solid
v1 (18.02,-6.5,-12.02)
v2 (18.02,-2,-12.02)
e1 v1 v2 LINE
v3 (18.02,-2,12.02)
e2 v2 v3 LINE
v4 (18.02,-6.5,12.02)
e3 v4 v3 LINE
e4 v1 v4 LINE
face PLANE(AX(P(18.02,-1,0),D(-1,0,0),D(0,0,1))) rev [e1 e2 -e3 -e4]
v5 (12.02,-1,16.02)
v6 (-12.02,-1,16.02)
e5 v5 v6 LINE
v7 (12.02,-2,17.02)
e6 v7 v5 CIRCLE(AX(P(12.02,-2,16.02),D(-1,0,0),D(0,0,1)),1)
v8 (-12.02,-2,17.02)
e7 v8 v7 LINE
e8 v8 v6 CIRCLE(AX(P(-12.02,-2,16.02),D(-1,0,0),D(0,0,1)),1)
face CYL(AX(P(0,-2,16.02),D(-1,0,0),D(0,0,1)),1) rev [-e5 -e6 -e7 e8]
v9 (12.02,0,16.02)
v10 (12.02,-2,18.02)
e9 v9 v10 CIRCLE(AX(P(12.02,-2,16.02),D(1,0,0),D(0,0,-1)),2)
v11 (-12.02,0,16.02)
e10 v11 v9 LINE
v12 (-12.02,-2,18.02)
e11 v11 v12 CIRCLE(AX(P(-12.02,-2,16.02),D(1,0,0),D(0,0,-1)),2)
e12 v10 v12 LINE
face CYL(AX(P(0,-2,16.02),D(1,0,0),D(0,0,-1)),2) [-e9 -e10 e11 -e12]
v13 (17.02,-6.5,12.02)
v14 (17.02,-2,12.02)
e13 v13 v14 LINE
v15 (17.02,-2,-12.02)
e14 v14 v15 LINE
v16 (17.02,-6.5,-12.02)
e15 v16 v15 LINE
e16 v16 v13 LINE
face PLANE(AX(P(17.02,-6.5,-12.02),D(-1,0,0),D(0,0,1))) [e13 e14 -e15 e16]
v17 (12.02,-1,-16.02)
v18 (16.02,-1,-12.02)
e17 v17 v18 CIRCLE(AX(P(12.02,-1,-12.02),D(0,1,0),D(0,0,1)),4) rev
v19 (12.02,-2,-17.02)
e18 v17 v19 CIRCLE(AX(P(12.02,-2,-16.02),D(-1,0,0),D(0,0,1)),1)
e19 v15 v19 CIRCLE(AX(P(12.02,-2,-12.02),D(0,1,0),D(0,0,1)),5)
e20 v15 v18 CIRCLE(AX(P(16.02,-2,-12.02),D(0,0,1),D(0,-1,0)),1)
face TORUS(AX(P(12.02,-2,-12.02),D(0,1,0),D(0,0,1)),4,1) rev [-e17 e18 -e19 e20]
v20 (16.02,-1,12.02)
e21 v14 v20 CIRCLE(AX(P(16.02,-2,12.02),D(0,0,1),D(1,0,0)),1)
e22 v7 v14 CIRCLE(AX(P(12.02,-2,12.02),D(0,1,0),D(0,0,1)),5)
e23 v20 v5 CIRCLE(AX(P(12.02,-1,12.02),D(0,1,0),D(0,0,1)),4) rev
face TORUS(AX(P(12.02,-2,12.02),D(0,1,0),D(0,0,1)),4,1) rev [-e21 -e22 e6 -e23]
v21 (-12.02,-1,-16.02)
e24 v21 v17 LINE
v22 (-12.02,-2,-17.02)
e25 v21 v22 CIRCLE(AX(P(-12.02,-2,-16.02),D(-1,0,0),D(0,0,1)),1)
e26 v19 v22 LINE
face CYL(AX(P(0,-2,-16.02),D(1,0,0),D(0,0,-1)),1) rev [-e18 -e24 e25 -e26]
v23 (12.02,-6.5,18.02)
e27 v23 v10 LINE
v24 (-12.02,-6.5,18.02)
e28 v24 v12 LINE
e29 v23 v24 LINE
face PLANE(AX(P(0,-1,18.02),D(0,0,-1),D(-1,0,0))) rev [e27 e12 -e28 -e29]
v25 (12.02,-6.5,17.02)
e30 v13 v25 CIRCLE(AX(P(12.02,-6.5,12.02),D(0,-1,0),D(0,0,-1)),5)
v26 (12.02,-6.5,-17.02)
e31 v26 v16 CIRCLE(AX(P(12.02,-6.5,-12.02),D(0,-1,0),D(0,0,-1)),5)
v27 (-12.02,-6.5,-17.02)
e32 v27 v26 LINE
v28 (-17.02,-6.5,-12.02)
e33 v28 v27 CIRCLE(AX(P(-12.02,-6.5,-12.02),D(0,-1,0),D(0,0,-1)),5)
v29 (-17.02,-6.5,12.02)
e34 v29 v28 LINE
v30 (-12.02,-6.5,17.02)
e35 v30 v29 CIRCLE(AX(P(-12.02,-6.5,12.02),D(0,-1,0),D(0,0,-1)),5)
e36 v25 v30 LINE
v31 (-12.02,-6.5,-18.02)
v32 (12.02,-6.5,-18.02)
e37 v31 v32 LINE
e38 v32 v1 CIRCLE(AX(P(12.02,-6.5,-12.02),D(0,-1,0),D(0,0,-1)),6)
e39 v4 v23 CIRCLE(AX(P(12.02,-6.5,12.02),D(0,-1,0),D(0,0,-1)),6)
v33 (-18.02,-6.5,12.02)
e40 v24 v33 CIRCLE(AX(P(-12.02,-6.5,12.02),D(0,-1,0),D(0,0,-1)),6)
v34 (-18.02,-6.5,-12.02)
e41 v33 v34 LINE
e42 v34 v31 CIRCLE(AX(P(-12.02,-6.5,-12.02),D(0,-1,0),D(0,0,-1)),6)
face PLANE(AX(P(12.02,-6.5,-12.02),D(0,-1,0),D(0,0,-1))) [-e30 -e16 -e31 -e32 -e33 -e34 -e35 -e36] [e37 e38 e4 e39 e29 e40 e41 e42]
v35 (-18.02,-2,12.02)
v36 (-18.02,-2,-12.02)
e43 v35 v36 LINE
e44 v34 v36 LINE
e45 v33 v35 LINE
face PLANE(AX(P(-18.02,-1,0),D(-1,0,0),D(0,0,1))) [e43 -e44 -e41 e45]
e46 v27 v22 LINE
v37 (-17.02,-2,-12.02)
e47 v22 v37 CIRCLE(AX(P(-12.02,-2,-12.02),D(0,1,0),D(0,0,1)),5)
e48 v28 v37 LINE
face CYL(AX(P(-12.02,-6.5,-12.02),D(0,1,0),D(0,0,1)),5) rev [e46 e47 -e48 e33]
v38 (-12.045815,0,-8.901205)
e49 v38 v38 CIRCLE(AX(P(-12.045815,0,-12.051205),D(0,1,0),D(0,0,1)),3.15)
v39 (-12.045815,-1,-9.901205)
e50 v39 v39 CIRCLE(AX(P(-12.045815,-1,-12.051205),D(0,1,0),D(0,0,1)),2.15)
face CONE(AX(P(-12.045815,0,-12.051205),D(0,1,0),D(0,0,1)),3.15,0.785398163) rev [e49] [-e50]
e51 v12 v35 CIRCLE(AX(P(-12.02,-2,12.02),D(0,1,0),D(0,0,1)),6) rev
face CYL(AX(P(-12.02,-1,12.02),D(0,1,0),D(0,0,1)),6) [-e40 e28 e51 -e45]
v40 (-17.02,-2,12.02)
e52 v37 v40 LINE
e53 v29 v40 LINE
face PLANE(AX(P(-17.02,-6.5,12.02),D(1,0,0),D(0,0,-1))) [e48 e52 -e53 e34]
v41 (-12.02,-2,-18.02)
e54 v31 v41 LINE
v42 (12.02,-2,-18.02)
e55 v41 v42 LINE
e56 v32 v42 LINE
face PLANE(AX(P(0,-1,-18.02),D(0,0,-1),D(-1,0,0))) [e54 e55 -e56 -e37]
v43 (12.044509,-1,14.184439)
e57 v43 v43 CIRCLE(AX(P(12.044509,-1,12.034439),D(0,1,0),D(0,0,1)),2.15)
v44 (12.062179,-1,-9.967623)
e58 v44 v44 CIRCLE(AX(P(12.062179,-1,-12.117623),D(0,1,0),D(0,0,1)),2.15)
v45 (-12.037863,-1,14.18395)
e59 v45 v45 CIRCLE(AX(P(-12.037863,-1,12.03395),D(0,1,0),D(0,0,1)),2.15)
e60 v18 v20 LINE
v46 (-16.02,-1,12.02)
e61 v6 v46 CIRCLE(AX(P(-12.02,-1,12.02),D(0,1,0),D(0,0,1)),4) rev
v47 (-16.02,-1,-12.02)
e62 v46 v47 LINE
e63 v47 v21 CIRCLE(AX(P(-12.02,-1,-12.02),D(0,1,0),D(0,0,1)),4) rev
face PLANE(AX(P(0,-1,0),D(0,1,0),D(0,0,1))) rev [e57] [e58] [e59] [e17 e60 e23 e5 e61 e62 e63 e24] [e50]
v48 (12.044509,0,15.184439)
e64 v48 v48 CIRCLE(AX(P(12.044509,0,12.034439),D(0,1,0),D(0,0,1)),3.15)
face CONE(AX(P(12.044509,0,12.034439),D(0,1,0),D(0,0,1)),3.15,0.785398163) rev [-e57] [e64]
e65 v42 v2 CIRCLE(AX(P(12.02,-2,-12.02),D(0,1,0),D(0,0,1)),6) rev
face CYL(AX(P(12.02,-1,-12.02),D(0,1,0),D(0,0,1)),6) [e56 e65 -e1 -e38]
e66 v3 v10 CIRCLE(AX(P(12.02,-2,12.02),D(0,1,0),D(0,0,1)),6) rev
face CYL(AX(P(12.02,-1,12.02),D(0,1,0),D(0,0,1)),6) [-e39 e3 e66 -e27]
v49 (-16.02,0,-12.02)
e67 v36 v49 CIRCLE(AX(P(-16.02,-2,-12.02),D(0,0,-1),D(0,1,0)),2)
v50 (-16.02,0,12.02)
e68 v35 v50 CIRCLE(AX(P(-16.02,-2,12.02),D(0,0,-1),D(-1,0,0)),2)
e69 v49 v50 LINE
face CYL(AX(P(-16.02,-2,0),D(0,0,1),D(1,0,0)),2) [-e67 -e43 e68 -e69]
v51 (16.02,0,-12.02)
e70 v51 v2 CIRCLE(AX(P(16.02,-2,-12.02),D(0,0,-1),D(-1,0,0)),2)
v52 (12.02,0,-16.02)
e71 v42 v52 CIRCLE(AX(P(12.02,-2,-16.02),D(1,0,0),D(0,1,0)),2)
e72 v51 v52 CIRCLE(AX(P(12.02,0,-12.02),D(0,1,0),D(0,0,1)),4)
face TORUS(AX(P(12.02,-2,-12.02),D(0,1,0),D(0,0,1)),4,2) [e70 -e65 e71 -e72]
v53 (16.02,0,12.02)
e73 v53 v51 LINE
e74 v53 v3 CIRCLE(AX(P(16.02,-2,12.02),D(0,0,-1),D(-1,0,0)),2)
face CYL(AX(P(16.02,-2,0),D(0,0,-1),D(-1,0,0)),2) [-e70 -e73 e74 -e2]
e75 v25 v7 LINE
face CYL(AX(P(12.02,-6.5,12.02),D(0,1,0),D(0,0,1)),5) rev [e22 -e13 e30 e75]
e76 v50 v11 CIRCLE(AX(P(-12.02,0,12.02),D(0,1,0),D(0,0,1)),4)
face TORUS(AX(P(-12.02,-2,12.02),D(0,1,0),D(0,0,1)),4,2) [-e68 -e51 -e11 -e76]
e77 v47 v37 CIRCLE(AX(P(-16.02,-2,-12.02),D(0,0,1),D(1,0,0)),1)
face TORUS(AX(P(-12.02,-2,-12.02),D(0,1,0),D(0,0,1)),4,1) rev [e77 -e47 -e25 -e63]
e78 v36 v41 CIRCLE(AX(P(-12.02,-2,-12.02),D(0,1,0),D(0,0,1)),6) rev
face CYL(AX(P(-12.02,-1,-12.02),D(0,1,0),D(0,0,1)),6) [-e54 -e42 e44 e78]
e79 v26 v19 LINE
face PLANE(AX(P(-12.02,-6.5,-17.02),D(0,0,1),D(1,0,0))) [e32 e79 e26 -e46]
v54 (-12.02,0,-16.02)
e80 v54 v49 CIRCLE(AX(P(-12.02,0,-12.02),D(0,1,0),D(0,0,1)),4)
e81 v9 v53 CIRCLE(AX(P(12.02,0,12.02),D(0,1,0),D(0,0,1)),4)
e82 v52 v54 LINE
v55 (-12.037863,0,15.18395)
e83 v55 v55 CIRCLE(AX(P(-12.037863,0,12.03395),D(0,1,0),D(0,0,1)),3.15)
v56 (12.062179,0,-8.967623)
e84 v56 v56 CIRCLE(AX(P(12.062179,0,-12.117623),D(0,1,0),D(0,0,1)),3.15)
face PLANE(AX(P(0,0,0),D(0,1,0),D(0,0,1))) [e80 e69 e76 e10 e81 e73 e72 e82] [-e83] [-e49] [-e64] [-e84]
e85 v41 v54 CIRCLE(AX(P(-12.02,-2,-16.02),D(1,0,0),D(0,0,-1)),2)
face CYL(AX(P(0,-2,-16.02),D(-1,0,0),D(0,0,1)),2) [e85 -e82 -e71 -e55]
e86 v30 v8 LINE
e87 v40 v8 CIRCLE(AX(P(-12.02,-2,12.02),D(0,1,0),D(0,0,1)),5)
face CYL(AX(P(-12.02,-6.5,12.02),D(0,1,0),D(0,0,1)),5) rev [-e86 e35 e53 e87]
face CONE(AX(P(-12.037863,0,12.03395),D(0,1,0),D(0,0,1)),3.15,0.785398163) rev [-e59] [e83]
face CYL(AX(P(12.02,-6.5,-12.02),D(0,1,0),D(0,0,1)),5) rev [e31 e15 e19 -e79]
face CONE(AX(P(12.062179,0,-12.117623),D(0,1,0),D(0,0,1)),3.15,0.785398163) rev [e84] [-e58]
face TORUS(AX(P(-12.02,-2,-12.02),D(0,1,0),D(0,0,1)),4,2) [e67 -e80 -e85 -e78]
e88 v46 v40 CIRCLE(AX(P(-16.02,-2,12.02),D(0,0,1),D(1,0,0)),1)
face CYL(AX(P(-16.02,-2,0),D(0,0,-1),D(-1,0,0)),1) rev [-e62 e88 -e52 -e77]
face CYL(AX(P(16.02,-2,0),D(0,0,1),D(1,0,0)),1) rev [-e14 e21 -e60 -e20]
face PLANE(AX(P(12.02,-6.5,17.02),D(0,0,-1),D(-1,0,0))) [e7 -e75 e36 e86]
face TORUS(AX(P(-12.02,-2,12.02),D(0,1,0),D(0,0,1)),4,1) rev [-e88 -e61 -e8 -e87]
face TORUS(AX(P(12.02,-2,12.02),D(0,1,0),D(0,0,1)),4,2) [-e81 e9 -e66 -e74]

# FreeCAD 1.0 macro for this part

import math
import FreeCAD as App
import Part
import Sketcher
from FreeCAD import Vector
Q = App.Units.Quantity


def edges_at(feature, points):
    """Names of the edges that pass closest to the given points."""
    edges = feature.Shape.Edges
    near = lambda p: min(range(len(edges)), key=lambda i: edges[i].distToShape(Part.Vertex(*p))[0])
    return sorted({f"Edge{near(p) + 1}" for p in points})


def add_polygon(sketch, points):
    """Adds a closed chain of lines whose ends are joined by coincident constraints."""
    first, n = sketch.GeometryCount, len(points)
    for a, b in zip(points, points[1:] + points[:1]):
        sketch.addGeometry(Part.LineSegment(App.Vector(*a, 0), App.Vector(*b, 0)), False)
    for i in range(n):
        sketch.addConstraint(Sketcher.Constraint("Coincident", first + i, 2, first + (i + 1) % n, 1))

doc = App.newDocument("Part")
body = doc.addObject("PartDesign::Body", "Body")

sketch1 = body.newObject("Sketcher::SketchObject", "Sketch")
sketch1.AttachmentSupport = (doc.getObject("XZ_Plane"), [""])
sketch1.MapMode = "FlatFace"
sketch1.addGeometry([
    Part.LineSegment(Vector(-18, -12, 0), Vector(-18, 12, 0)),
    Part.ArcOfCircle(Part.Circle(Vector(-12, 12, 0), Vector(0, 0, 1), 6), math.radians(90), math.radians(180)),
    Part.LineSegment(Vector(-12, 18, 0), Vector(12, 18, 0)),
    Part.ArcOfCircle(Part.Circle(Vector(12, 12, 0), Vector(0, 0, 1), 6), math.radians(0), math.radians(90)),
    Part.LineSegment(Vector(18, 12, 0), Vector(18, -12, 0)),
    Part.ArcOfCircle(Part.Circle(Vector(12, -12, 0), Vector(0, 0, 1), 6), math.radians(-90), math.radians(0)),
    Part.LineSegment(Vector(12, -18, 0), Vector(-12, -18, 0)),
    Part.ArcOfCircle(Part.Circle(Vector(-12, -12, 0), Vector(0, 0, 1), 6), math.radians(180), math.radians(270)),
], False)
sketch1.addConstraint([
    Sketcher.Constraint("Tangent", 0, 2, 1, 2),
    Sketcher.Constraint("Tangent", 1, 1, 2, 1),
    Sketcher.Constraint("Tangent", 2, 2, 3, 2),
    Sketcher.Constraint("Tangent", 3, 1, 4, 1),
    Sketcher.Constraint("Tangent", 4, 2, 5, 2),
    Sketcher.Constraint("Tangent", 5, 1, 6, 1),
    Sketcher.Constraint("Tangent", 6, 2, 7, 2),
    Sketcher.Constraint("Tangent", 7, 1, 0, 1),
    Sketcher.Constraint("Vertical", 0),
    Sketcher.Constraint("Horizontal", 2),
    Sketcher.Constraint("Vertical", 4),
    Sketcher.Constraint("Horizontal", 6),
    Sketcher.Constraint("Equal", 1, 3),
    Sketcher.Constraint("Equal", 3, 5),
    Sketcher.Constraint("Equal", 5, 7),
    Sketcher.Constraint("Symmetric", 1, 3, 5, 3, -1, 1),
    Sketcher.Constraint("Equal", 6, 0),
    Sketcher.Constraint("Radius", 1, Q("6 mm")),
    Sketcher.Constraint("DistanceX", 2, 1, 2, 2, Q("24.04 mm")),
])
pad1 = body.newObject("PartDesign::Pad", "Pad")
pad1.Profile = sketch1
pad1.Length = 1

sketch2 = body.newObject("Sketcher::SketchObject", "Sketch001")
sketch2.AttachmentSupport = (doc.getObject("YZ_Plane"), [""])
sketch2.MapMode = "FlatFace"
sketch2.AttachmentOffset = App.Placement(Vector(0, 0, -12.037863), App.Rotation())
add_polygon(sketch2, [(-1, 12.03), (0, 12.03), (0, 15.18), (-1.45, 13.73), (-1, 13.73)])
sketch2.addGeometry(Part.LineSegment(Vector(0, 12.03, 0), Vector(-1.45, 12.03, 0)), True)
sketch2.addConstraint([
    Sketcher.Constraint("Horizontal", 0),
    Sketcher.Constraint("Vertical", 1),
    Sketcher.Constraint("Horizontal", 3),
    Sketcher.Constraint("Vertical", 4),
    Sketcher.Constraint("Horizontal", 5),
    Sketcher.Constraint("Coincident", 5, 1, 0, 2),
    Sketcher.Constraint("PointOnObject", 0, 2, -2),
    Sketcher.Constraint("Vertical", 2, 2, 5, 2),
    Sketcher.Constraint("Angle", 2, Q("-135 deg")),
    Sketcher.Constraint("DistanceY", 4, 2, 4, 1, Q("1.7 mm")),
    Sketcher.Constraint("DistanceX", 5, 2, 5, 1, Q("1.45 mm")),
    Sketcher.Constraint("DistanceX", 0, 1, 0, 2, Q("1.001 mm")),
    Sketcher.Constraint("DistanceY", -1, 1, 0, 2, Q("12.03395 mm")),
])
groove = body.newObject("PartDesign::Groove", "Groove")
groove.Profile = sketch2
groove.ReferenceAxis = (sketch2, ["Axis0"])
groove.Angle = 360
doc.recompute()

datumline = body.newObject("PartDesign::Line", "DatumLine")
datumline.Placement = App.Placement(Vector(0, 0, 0), App.Rotation(Vector(0, 0, 1), Vector(0.706351229, 0, -0.707861527)))
linearpattern = body.newObject("PartDesign::LinearPattern", "LinearPattern")
linearpattern.Originals = [groove]
linearpattern.Direction = (datumline, [""])
linearpattern.Mode = "offset"
linearpattern.Offset = 34.119063
linearpattern.Occurrences = 2
body.Tip = linearpattern
doc.recompute()

linearpattern2 = body.newObject("PartDesign::LinearPattern", "LinearPattern001")
linearpattern2.Originals = [groove]
linearpattern2.Direction = (doc.getObject("X_Axis"), [""])
linearpattern2.Mode = "offset"
linearpattern2.Offset = 24.082373
linearpattern2.Occurrences = 2
body.Tip = linearpattern2
doc.recompute()

datumline2 = body.newObject("PartDesign::Line", "DatumLine001")
datumline2.Placement = App.Placement(Vector(0, 0, 0), App.Rotation(Vector(0, 0, 1), Vector(-0.000330161, 0, -0.999999945)))
linearpattern3 = body.newObject("PartDesign::LinearPattern", "LinearPattern002")
linearpattern3.Originals = [groove]
linearpattern3.Direction = (datumline2, [""])
linearpattern3.Mode = "offset"
linearpattern3.Offset = 24.085156
linearpattern3.Occurrences = 2
body.Tip = linearpattern3

sketch3 = body.newObject("Sketcher::SketchObject", "Sketch002")
sketch3.AttachmentSupport = (doc.getObject("XZ_Plane"), [""])
sketch3.MapMode = "FlatFace"
sketch3.AttachmentOffset = App.Placement(Vector(0, 0, 1), App.Rotation())
sketch3.addGeometry([
    Part.LineSegment(Vector(18, -12, 0), Vector(18, 12, 0)),
    Part.ArcOfCircle(Part.Circle(Vector(12, 12, 0), Vector(0, 0, 1), 6), math.radians(0), math.radians(90)),
    Part.LineSegment(Vector(12, 18, 0), Vector(-12, 18, 0)),
    Part.ArcOfCircle(Part.Circle(Vector(-12, 12, 0), Vector(0, 0, 1), 6), math.radians(90), math.radians(180)),
    Part.LineSegment(Vector(-18, 12, 0), Vector(-18, -12, 0)),
    Part.ArcOfCircle(Part.Circle(Vector(-12, -12, 0), Vector(0, 0, 1), 6), math.radians(180), math.radians(270)),
    Part.LineSegment(Vector(-12, -18, 0), Vector(12, -18, 0)),
    Part.ArcOfCircle(Part.Circle(Vector(12, -12, 0), Vector(0, 0, 1), 6), math.radians(-90), math.radians(0)),
    Part.LineSegment(Vector(17, 12, 0), Vector(17, -12, 0)),
    Part.ArcOfCircle(Part.Circle(Vector(12, -12, 0), Vector(0, 0, 1), 5), math.radians(-90), math.radians(0)),
    Part.LineSegment(Vector(12, -17, 0), Vector(-12, -17, 0)),
    Part.ArcOfCircle(Part.Circle(Vector(-12, -12, 0), Vector(0, 0, 1), 5), math.radians(180), math.radians(270)),
    Part.LineSegment(Vector(-17, -12, 0), Vector(-17, 12, 0)),
    Part.ArcOfCircle(Part.Circle(Vector(-12, 12, 0), Vector(0, 0, 1), 5), math.radians(90), math.radians(180)),
    Part.LineSegment(Vector(-12, 17, 0), Vector(12, 17, 0)),
    Part.ArcOfCircle(Part.Circle(Vector(12, 12, 0), Vector(0, 0, 1), 5), math.radians(0), math.radians(90)),
], False)
sketch3.addConstraint([
    Sketcher.Constraint("Tangent", 0, 2, 1, 1),
    Sketcher.Constraint("Tangent", 1, 2, 2, 1),
    Sketcher.Constraint("Tangent", 2, 2, 3, 1),
    Sketcher.Constraint("Tangent", 3, 2, 4, 1),
    Sketcher.Constraint("Tangent", 4, 2, 5, 1),
    Sketcher.Constraint("Tangent", 5, 2, 6, 1),
    Sketcher.Constraint("Tangent", 6, 2, 7, 1),
    Sketcher.Constraint("Tangent", 7, 2, 0, 1),
    Sketcher.Constraint("Tangent", 8, 2, 9, 2),
    Sketcher.Constraint("Tangent", 9, 1, 10, 1),
    Sketcher.Constraint("Tangent", 10, 2, 11, 2),
    Sketcher.Constraint("Tangent", 11, 1, 12, 1),
    Sketcher.Constraint("Tangent", 12, 2, 13, 2),
    Sketcher.Constraint("Tangent", 13, 1, 14, 1),
    Sketcher.Constraint("Tangent", 14, 2, 15, 2),
    Sketcher.Constraint("Tangent", 15, 1, 8, 1),
    Sketcher.Constraint("Vertical", 0),
    Sketcher.Constraint("Horizontal", 2),
    Sketcher.Constraint("Vertical", 4),
    Sketcher.Constraint("Horizontal", 6),
    Sketcher.Constraint("Vertical", 8),
    Sketcher.Constraint("Horizontal", 10),
    Sketcher.Constraint("Vertical", 12),
    Sketcher.Constraint("Horizontal", 14),
    Sketcher.Constraint("Coincident", 9, 3, 7, 3),
    Sketcher.Constraint("Coincident", 11, 3, 5, 3),
    Sketcher.Constraint("Coincident", 13, 3, 3, 3),
    Sketcher.Constraint("Equal", 1, 3),
    Sketcher.Constraint("Equal", 3, 5),
    Sketcher.Constraint("Equal", 5, 7),
    Sketcher.Constraint("Equal", 13, 15),
    Sketcher.Constraint("Symmetric", 1, 3, 5, 3, -1, 1),
    Sketcher.Constraint("Equal", 14, 0),
    Sketcher.Constraint("Radius", 1, Q("6 mm")),
    Sketcher.Constraint("Radius", 9, Q("5 mm")),
    Sketcher.Constraint("DistanceX", 2, 2, 2, 1, Q("24.04 mm")),
])
pad2 = body.newObject("PartDesign::Pad", "Pad001")
pad2.Profile = sketch3
pad2.Length = 5.5
doc.recompute()

fillet = body.newObject("PartDesign::Fillet", "Fillet")
fillet.Base = (pad2, edges_at(pad2, [
    (16.263, 0, 16.263),
    (0, 0, 18.02),
    (-16.263, 0, 16.263),
    (-18.02, 0, 0),
    (-16.263, 0, -16.263),
    (0, 0, -18.02),
    (16.263, 0, -16.263),
    (18.02, 0, 0),
]))
fillet.Radius = 2
doc.recompute()

fillet2 = body.newObject("PartDesign::Fillet", "Fillet001")
fillet2.Base = (fillet, edges_at(fillet, [
    (15.556, -1, -15.556),
    (17.02, -1, 0),
    (15.556, -1, 15.556),
    (0, -1, 17.02),
    (-15.556, -1, 15.556),
    (-17.02, -1, 0),
    (-15.556, -1, -15.556),
    (0, -1, -17.02),
]))
fillet2.Radius = 1

doc.recompute()
